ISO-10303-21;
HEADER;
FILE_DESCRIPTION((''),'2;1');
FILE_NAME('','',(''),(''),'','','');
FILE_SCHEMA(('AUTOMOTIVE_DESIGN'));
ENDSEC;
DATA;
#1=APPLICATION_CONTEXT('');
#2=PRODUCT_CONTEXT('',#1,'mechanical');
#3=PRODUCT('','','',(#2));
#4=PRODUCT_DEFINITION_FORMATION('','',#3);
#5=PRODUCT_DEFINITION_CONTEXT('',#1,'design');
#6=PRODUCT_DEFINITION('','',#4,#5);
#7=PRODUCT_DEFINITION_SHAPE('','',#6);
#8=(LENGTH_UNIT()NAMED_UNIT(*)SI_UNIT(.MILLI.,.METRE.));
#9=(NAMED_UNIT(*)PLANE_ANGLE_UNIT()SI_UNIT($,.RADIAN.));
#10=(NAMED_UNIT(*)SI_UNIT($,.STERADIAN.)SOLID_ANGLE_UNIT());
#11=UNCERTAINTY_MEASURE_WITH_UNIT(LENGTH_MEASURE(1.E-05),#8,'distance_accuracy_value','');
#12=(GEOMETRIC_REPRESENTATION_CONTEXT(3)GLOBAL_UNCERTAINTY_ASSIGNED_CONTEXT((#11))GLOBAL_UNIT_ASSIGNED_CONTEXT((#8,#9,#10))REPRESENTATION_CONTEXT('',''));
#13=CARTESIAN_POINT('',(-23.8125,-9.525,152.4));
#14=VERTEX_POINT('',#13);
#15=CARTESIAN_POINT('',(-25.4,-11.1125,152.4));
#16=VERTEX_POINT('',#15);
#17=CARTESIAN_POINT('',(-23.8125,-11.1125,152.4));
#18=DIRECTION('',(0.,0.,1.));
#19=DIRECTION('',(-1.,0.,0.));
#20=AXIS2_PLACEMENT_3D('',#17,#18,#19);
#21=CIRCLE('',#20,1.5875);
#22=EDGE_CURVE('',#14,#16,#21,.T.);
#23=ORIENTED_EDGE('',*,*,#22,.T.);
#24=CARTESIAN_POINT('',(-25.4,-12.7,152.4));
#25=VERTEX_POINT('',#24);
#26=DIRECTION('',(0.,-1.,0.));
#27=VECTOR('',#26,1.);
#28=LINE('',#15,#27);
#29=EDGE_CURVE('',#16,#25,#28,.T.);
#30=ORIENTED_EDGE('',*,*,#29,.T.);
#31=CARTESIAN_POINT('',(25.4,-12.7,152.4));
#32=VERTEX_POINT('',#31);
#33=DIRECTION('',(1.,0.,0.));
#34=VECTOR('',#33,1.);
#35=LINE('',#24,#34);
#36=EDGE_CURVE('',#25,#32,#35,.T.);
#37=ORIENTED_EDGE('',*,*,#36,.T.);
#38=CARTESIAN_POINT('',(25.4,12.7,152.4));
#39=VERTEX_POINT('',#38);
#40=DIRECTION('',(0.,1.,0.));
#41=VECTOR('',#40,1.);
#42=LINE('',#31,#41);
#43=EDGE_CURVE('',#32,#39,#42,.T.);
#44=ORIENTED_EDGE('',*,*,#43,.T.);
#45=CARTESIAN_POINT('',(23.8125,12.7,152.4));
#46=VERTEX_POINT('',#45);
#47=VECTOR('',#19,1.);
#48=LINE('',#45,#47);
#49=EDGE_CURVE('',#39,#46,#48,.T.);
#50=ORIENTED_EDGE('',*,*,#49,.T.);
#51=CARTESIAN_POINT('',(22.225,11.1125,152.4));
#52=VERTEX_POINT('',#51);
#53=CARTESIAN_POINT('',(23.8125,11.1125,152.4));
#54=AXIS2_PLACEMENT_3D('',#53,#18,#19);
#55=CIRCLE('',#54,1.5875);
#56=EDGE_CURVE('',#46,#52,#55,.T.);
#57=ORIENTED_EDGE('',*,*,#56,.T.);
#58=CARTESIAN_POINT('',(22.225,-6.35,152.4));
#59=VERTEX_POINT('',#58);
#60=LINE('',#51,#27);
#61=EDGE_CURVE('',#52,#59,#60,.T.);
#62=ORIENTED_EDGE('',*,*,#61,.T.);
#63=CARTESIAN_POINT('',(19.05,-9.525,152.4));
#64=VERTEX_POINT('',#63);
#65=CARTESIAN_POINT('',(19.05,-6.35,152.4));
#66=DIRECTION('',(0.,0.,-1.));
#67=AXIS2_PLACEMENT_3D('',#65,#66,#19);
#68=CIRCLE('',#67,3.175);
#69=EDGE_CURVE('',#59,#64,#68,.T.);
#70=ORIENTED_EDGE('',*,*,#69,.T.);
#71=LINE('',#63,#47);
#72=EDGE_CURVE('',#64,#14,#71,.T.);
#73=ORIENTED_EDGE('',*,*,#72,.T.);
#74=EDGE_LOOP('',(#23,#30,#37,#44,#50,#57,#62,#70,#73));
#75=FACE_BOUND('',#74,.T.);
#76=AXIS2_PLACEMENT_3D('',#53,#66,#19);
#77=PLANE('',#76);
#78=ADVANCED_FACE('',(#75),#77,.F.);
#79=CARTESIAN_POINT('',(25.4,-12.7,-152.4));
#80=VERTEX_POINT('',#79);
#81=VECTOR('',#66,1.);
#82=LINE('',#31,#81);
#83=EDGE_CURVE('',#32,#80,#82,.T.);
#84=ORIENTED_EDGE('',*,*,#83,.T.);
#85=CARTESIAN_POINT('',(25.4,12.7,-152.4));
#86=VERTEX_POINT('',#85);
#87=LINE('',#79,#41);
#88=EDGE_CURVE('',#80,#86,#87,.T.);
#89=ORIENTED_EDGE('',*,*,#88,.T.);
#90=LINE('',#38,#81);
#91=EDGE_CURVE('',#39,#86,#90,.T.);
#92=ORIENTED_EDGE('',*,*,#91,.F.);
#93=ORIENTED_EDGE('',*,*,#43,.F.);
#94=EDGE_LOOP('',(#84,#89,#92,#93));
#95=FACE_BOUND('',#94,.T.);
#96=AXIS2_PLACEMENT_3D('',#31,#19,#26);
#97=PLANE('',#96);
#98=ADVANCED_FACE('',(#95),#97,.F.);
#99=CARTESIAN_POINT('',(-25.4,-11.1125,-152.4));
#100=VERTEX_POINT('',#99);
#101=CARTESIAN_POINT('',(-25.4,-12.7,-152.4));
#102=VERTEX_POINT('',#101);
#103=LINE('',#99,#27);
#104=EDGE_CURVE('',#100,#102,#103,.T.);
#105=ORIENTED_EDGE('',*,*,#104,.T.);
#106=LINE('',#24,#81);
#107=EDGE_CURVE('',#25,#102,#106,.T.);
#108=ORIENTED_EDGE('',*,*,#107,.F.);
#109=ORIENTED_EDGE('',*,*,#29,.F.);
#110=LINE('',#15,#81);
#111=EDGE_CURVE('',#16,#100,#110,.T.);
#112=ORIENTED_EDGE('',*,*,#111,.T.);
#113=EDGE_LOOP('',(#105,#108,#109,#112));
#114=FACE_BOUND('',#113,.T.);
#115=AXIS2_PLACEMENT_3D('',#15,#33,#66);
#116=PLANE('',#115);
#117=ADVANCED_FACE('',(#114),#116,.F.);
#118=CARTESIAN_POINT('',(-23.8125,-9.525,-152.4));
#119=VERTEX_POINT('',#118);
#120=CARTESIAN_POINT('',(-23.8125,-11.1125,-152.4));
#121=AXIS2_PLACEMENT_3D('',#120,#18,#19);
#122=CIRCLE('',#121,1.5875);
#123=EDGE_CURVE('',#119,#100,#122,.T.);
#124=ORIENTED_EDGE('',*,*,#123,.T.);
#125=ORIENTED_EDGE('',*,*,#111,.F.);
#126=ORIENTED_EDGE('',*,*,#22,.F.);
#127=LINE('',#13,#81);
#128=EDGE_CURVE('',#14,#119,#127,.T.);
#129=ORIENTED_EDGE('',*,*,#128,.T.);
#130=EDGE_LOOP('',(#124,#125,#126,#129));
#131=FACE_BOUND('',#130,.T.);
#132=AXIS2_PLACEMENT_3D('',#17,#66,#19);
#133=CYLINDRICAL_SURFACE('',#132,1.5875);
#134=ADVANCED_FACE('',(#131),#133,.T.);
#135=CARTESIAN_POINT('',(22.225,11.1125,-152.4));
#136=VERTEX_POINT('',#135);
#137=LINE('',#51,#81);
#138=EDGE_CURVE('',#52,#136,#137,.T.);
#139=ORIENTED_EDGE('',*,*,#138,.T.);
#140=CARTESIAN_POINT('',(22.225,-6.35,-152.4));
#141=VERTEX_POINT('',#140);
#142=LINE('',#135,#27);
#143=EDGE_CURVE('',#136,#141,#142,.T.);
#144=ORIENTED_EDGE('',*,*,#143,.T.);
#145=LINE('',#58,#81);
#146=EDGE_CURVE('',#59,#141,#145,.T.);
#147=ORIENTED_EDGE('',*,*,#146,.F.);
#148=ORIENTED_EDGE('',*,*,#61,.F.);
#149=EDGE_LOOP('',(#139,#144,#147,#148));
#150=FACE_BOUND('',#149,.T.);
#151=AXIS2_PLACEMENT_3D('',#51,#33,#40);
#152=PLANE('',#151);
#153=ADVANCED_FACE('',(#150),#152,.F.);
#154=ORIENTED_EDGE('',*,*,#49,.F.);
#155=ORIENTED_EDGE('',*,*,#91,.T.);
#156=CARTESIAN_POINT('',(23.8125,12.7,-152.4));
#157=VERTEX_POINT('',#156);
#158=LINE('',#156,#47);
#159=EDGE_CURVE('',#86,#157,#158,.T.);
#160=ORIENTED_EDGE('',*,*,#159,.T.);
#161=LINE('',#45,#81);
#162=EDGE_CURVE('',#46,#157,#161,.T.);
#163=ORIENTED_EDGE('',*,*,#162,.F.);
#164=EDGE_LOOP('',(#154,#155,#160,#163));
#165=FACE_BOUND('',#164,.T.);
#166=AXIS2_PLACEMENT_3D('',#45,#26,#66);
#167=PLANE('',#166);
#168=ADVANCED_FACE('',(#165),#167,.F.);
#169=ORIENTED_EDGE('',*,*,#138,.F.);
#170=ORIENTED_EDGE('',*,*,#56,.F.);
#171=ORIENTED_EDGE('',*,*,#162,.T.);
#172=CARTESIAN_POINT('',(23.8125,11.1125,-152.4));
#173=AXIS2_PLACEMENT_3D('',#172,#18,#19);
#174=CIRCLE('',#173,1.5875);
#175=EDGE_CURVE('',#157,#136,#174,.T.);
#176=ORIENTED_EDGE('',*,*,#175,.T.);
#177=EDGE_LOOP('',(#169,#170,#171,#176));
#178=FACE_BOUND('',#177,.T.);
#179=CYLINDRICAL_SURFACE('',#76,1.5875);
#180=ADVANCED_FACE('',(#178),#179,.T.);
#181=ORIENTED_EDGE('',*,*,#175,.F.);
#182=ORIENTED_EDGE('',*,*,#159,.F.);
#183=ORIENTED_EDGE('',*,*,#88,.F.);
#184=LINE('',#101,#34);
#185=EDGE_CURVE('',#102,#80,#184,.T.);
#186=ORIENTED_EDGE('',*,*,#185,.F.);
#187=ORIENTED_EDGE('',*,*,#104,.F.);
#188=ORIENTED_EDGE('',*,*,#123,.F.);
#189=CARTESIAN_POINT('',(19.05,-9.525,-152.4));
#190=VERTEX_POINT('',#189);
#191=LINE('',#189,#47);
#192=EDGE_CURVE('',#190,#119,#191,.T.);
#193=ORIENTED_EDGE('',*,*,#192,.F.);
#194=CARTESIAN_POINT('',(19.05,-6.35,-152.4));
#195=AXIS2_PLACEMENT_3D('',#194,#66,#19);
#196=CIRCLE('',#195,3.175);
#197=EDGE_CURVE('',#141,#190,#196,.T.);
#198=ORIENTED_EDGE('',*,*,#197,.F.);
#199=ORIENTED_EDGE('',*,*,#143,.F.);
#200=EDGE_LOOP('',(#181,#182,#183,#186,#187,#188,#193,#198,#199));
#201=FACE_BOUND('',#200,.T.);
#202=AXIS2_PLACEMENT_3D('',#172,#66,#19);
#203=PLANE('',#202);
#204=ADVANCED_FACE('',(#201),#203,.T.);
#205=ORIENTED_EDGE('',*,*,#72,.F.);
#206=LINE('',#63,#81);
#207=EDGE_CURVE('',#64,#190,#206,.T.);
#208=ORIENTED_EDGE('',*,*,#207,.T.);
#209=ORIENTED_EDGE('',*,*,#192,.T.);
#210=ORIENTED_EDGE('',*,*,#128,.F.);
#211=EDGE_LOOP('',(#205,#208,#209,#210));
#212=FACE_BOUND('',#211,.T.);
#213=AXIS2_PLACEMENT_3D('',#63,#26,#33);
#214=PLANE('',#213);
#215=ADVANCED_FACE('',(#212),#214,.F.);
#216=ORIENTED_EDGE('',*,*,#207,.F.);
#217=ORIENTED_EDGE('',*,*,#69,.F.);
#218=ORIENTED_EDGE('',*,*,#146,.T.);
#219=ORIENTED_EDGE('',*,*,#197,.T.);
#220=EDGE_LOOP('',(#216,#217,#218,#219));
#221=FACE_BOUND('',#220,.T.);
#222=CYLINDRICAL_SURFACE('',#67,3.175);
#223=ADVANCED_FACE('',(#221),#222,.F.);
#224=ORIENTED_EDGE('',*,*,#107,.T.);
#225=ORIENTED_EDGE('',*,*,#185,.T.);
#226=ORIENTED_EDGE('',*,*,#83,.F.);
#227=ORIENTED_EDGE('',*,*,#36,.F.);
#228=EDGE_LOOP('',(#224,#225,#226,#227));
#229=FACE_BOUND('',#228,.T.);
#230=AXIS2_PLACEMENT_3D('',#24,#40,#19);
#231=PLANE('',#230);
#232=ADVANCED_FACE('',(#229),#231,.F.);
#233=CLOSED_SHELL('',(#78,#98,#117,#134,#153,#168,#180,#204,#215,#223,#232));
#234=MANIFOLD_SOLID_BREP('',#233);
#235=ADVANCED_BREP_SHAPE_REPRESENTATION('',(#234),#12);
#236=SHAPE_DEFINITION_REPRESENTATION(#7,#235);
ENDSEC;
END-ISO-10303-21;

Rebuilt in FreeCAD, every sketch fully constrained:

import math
import FreeCAD as App
import Part
import Sketcher
from FreeCAD import Vector
Q = App.Units.Quantity

doc = App.newDocument("Part")
body = doc.addObject("PartDesign::Body", "Body")

sketch1 = body.newObject("Sketcher::SketchObject", "Sketch")
sketch1.AttachmentSupport = (doc.getObject("XY_Plane"), [""])
sketch1.MapMode = "FlatFace"
sketch1.addGeometry([
    Part.LineSegment(Vector(-25.4, -12.7, 0), Vector(25.4, -12.7, 0)),
    Part.LineSegment(Vector(25.4, -12.7, 0), Vector(25.4, 12.7, 0)),
    Part.LineSegment(Vector(25.4, 12.7, 0), Vector(23.8, 12.7, 0)),
    Part.ArcOfCircle(Part.Circle(Vector(23.8, 11.1, 0), Vector(0, 0, 1), 1.6), math.radians(90), math.radians(180)),
    Part.LineSegment(Vector(22.2, 11.1, 0), Vector(22.2, -6.3, 0)),
    Part.ArcOfCircle(Part.Circle(Vector(19, -6.3, 0), Vector(0, 0, 1), 3.2), math.radians(-90), math.radians(0)),
    Part.LineSegment(Vector(19.1, -9.5, 0), Vector(-23.8, -9.5, 0)),
    Part.ArcOfCircle(Part.Circle(Vector(-23.8, -11.1, 0), Vector(0, 0, 1), 1.6), math.radians(90), math.radians(180)),
    Part.LineSegment(Vector(-25.4, -11.1, 0), Vector(-25.4, -12.7, 0)),
], False)
sketch1.addConstraint([
    Sketcher.Constraint("Coincident", 0, 2, 1, 1),
    Sketcher.Constraint("Coincident", 1, 2, 2, 1),
    Sketcher.Constraint("Tangent", 2, 2, 3, 1),
    Sketcher.Constraint("Tangent", 3, 2, 4, 1),
    Sketcher.Constraint("Tangent", 4, 2, 5, 2),
    Sketcher.Constraint("Tangent", 5, 1, 6, 1),
    Sketcher.Constraint("Tangent", 6, 2, 7, 1),
    Sketcher.Constraint("Tangent", 7, 2, 8, 1),
    Sketcher.Constraint("Coincident", 8, 2, 0, 1),
    Sketcher.Constraint("Horizontal", 0),
    Sketcher.Constraint("Vertical", 1),
    Sketcher.Constraint("Horizontal", 2),
    Sketcher.Constraint("Vertical", 4),
    Sketcher.Constraint("Horizontal", 6),
    Sketcher.Constraint("Vertical", 8),
    Sketcher.Constraint("Equal", 3, 7),
    Sketcher.Constraint("Symmetric", 3, 3, 7, 3, -1, 1),
    Sketcher.Constraint("Symmetric", 1, 2, 8, 2, -1, 1),
    Sketcher.Constraint("DistanceX", 0, 1, 0, 2, Q("2 in")),
    Sketcher.Constraint("DistanceY", 1, 1, 1, 2, Q("1 in")),
    Sketcher.Constraint("Radius", 3, Q("0.0625 in")),
    Sketcher.Constraint("Radius", 5, Q("0.125 in")),
])
pad1 = body.newObject("PartDesign::Pad", "Pad")
pad1.Profile = sketch1
pad1.Length = Q("12 in")
pad1.Midplane = True

doc.recompute()
